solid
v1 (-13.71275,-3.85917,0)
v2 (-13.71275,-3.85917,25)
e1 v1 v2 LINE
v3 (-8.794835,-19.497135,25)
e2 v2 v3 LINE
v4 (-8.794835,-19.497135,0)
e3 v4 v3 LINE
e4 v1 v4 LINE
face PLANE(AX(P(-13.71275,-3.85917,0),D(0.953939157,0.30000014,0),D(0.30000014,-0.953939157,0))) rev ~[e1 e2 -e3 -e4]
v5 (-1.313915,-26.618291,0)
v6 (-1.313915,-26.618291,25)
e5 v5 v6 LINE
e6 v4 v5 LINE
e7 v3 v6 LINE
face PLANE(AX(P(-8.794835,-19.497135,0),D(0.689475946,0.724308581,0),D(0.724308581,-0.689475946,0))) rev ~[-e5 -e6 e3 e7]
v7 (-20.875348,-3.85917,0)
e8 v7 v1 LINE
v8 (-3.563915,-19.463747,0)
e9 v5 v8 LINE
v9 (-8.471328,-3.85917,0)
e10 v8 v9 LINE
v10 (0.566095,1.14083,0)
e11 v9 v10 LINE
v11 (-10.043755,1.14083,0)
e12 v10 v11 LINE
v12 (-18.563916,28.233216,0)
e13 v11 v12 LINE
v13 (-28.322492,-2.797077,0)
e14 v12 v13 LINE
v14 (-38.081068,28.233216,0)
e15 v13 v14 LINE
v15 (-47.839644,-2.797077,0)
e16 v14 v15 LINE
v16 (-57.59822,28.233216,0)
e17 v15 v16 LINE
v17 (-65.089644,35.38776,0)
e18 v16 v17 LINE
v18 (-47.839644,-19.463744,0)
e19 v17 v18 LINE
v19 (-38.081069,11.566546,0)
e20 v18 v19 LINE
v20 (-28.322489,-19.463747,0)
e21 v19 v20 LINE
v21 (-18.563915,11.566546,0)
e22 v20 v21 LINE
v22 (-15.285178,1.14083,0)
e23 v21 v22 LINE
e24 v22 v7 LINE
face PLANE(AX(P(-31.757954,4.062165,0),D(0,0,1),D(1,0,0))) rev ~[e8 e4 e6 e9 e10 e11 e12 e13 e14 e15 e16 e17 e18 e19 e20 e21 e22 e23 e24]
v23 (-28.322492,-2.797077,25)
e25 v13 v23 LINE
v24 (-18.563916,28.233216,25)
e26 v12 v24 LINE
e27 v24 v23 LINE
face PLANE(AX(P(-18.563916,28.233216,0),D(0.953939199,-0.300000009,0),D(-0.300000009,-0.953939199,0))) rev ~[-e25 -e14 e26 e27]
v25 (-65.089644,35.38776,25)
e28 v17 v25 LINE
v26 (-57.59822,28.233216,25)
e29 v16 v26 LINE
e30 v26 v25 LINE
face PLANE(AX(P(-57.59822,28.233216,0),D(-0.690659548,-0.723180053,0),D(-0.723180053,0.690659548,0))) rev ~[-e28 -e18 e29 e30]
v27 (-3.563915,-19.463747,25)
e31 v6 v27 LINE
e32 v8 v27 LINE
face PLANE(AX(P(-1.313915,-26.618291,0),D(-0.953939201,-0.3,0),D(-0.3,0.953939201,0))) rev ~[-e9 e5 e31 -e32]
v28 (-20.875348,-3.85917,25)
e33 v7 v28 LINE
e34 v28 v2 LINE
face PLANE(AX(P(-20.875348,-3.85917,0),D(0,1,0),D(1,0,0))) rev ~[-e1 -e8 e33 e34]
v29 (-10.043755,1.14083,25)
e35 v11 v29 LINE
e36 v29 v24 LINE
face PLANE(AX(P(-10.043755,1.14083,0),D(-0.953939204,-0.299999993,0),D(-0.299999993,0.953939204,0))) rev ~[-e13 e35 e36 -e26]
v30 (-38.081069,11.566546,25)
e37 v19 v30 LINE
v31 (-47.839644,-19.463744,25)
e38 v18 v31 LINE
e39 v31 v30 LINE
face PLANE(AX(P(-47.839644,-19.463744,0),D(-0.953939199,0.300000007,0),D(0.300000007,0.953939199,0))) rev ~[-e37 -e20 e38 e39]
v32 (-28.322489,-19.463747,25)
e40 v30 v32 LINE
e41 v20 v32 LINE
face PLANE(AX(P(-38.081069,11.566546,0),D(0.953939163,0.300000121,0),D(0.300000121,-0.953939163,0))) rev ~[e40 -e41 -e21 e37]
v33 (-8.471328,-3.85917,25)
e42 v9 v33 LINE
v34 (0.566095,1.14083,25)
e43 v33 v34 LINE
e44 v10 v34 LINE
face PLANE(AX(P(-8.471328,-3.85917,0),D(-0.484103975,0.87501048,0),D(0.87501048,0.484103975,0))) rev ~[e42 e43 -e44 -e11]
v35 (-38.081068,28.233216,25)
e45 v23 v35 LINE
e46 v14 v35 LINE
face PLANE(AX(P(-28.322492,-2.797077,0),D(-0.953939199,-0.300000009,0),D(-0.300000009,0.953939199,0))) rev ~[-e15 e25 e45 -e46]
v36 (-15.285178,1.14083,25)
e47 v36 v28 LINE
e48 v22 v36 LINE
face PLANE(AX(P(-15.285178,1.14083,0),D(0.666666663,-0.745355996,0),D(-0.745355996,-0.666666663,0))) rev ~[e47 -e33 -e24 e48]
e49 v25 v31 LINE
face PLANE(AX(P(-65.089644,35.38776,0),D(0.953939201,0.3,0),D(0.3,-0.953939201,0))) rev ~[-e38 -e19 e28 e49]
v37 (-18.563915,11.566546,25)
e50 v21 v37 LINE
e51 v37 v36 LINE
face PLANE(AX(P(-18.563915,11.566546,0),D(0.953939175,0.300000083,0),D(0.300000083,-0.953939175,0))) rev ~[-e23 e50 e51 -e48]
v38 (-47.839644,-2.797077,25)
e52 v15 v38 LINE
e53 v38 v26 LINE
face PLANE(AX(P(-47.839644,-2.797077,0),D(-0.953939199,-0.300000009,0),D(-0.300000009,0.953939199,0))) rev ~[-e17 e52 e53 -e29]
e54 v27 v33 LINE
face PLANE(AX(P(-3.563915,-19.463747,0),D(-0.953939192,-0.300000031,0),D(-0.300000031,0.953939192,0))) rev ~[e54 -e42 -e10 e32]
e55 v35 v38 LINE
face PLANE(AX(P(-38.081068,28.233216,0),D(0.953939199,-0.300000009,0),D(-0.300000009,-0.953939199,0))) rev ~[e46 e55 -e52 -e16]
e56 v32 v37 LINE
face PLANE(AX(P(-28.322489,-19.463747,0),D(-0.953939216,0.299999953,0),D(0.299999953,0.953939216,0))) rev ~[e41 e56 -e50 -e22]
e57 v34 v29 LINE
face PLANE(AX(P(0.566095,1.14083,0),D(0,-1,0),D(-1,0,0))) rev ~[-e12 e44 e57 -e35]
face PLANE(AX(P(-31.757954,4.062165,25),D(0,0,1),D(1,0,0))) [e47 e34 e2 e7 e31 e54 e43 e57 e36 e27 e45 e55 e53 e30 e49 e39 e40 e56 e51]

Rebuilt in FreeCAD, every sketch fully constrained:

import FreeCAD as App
import Part
import Sketcher

doc = App.newDocument("Part")
body = doc.addObject("PartDesign::Body", "Body")

# Sketch on XY plane
sketch1 = body.newObject("Sketcher::SketchObject", "Sketch")
sketch1.AttachmentSupport = (doc.getObject("XY_Plane"), [""])
sketch1.MapMode = "FlatFace"
sketch1.addGeometry(Part.LineSegment(App.Vector(-65.089644, 35.38776, 0), App.Vector(-47.839644, -19.463744, 0)), False)
sketch1.addGeometry(Part.LineSegment(App.Vector(-47.839644, -19.463744, 0), App.Vector(-38.081069, 11.566546, 0)), False)
sketch1.addGeometry(Part.LineSegment(App.Vector(-38.081069, 11.566546, 0), App.Vector(-28.322489, -19.463747, 0)), False)
sketch1.addGeometry(Part.LineSegment(App.Vector(-28.322489, -19.463747, 0), App.Vector(-18.563915, 11.566546, 0)), False)
sketch1.addGeometry(Part.LineSegment(App.Vector(-18.563915, 11.566546, 0), App.Vector(-15.285178, 1.14083, 0)), False)
sketch1.addGeometry(Part.LineSegment(App.Vector(-15.285178, 1.14083, 0), App.Vector(-20.875348, -3.85917, 0)), False)
sketch1.addGeometry(Part.LineSegment(App.Vector(-20.875348, -3.85917, 0), App.Vector(-13.71275, -3.85917, 0)), False)
sketch1.addGeometry(Part.LineSegment(App.Vector(-13.71275, -3.85917, 0), App.Vector(-8.794835, -19.497135, 0)), False)
sketch1.addGeometry(Part.LineSegment(App.Vector(-8.794835, -19.497135, 0), App.Vector(-1.313915, -26.618291, 0)), False)
sketch1.addGeometry(Part.LineSegment(App.Vector(-1.313915, -26.618291, 0), App.Vector(-3.563915, -19.463747, 0)), False)
sketch1.addGeometry(Part.LineSegment(App.Vector(-3.563915, -19.463747, 0), App.Vector(-8.471328, -3.85917, 0)), False)
sketch1.addGeometry(Part.LineSegment(App.Vector(-8.471328, -3.85917, 0), App.Vector(0.566095, 1.14083, 0)), False)
sketch1.addGeometry(Part.LineSegment(App.Vector(0.566095, 1.14083, 0), App.Vector(-10.043755, 1.14083, 0)), False)
sketch1.addGeometry(Part.LineSegment(App.Vector(-10.043755, 1.14083, 0), App.Vector(-18.563916, 28.233216, 0)), False)
sketch1.addGeometry(Part.LineSegment(App.Vector(-18.563916, 28.233216, 0), App.Vector(-28.322492, -2.797077, 0)), False)
sketch1.addGeometry(Part.LineSegment(App.Vector(-28.322492, -2.797077, 0), App.Vector(-38.081068, 28.233216, 0)), False)
sketch1.addGeometry(Part.LineSegment(App.Vector(-38.081068, 28.233216, 0), App.Vector(-47.839644, -2.797077, 0)), False)
sketch1.addGeometry(Part.LineSegment(App.Vector(-47.839644, -2.797077, 0), App.Vector(-57.59822, 28.233216, 0)), False)
sketch1.addGeometry(Part.LineSegment(App.Vector(-57.59822, 28.233216, 0), App.Vector(-65.089644, 35.38776, 0)), False)
sketch1.addConstraint(Sketcher.Constraint("Coincident", 0, 2, 1, 1))
sketch1.addConstraint(Sketcher.Constraint("Coincident", 1, 2, 2, 1))
sketch1.addConstraint(Sketcher.Constraint("Coincident", 2, 2, 3, 1))
sketch1.addConstraint(Sketcher.Constraint("Coincident", 3, 2, 4, 1))
sketch1.addConstraint(Sketcher.Constraint("Coincident", 4, 2, 5, 1))
sketch1.addConstraint(Sketcher.Constraint("Coincident", 5, 2, 6, 1))
sketch1.addConstraint(Sketcher.Constraint("Coincident", 6, 2, 7, 1))
sketch1.addConstraint(Sketcher.Constraint("Coincident", 7, 2, 8, 1))
sketch1.addConstraint(Sketcher.Constraint("Coincident", 8, 2, 9, 1))
sketch1.addConstraint(Sketcher.Constraint("Coincident", 9, 2, 10, 1))
sketch1.addConstraint(Sketcher.Constraint("Coincident", 10, 2, 11, 1))
sketch1.addConstraint(Sketcher.Constraint("Coincident", 11, 2, 12, 1))
sketch1.addConstraint(Sketcher.Constraint("Coincident", 12, 2, 13, 1))
sketch1.addConstraint(Sketcher.Constraint("Coincident", 13, 2, 14, 1))
sketch1.addConstraint(Sketcher.Constraint("Coincident", 14, 2, 15, 1))
sketch1.addConstraint(Sketcher.Constraint("Coincident", 15, 2, 16, 1))
sketch1.addConstraint(Sketcher.Constraint("Coincident", 16, 2, 17, 1))
sketch1.addConstraint(Sketcher.Constraint("Coincident", 17, 2, 18, 1))
sketch1.addConstraint(Sketcher.Constraint("Coincident", 18, 2, 0, 1))
sketch1.addConstraint(Sketcher.Constraint("Horizontal", 6))
sketch1.addConstraint(Sketcher.Constraint("Horizontal", 12))
sketch1.addConstraint(Sketcher.Constraint("DistanceY", 5, 2, 4, 2, 5.0))
sketch1.addConstraint(Sketcher.Constraint("DistanceY", 10, 2, 4, 2, 5.0))
sketch1.addConstraint(Sketcher.Constraint("DistanceY", 10, 2, 11, 2, 5.0))
sketch1.addConstraint(Sketcher.Constraint("Distance", 0, 57.5))
sketch1.addConstraint(Sketcher.Constraint("Distance", 5, 7.5))
sketch1.addConstraint(Sketcher.Constraint("Distance", 9, 7.5))
sketch1.addConstraint(Sketcher.Constraint("DistanceX", 9, 2, 8, 2, 2.25))
sketch1.addConstraint(Sketcher.Constraint("DistanceX", 18, 2, 16, 2, 17.25))
sketch1.addConstraint(Sketcher.Constraint("DistanceX", 12, 2, 12, 1, 10.60985))
sketch1.addConstraint(Sketcher.Constraint("Distance", 4, 10.92912))
sketch1.addConstraint(Sketcher.Constraint("Distance", 8, 10.32836))
sketch1.addConstraint(Sketcher.Constraint("Distance", 10, 16.358042))
sketch1.addConstraint(Sketcher.Constraint("Distance", 11, 10.32836))
sketch1.addConstraint(Sketcher.Constraint("DistanceX", 6, 1, 6, 2, 7.162598))
sketch1.addConstraint(Sketcher.Constraint("DistanceX", 1, 2, -1, 1, 38.081069))
sketch1.addConstraint(Sketcher.Constraint("DistanceX", 2, 2, -1, 1, 28.322489))
sketch1.addConstraint(Sketcher.Constraint("DistanceY", -1, 1, 4, 2, 1.14083))
sketch1.addConstraint(Sketcher.Constraint("DistanceX", 6, 2, -1, 1, 13.71275))
sketch1.addConstraint(Sketcher.Constraint("DistanceY", 8, 2, -1, 1, 26.618291))
sketch1.addConstraint(Sketcher.Constraint("DistanceX", 15, 2, -1, 1, 38.081068))
sketch1.addConstraint(Sketcher.Constraint("DistanceX", 17, 2, -1, 1, 57.59822))
sketch1.addConstraint(Sketcher.Constraint("DistanceY", -1, 1, 18, 2, 35.38776))
sketch1.addConstraint(Sketcher.Constraint("DistanceY", 0, 2, 1, 2, 31.03029))
sketch1.addConstraint(Sketcher.Constraint("DistanceX", 0, 2, 3, 2, 29.275729))
sketch1.addConstraint(Sketcher.Constraint("DistanceY", 0, 2, 3, 2, 31.03029))
sketch1.addConstraint(Sketcher.Constraint("DistanceX", 3, 2, 7, 2, 9.76908))
sketch1.addConstraint(Sketcher.Constraint("DistanceY", 7, 2, 3, 2, 31.063681))
sketch1.addConstraint(Sketcher.Constraint("DistanceX", 7, 2, 8, 2, 7.48092))
sketch1.addConstraint(Sketcher.Constraint("DistanceY", 3, 2, 13, 2, 16.66667))
sketch1.addConstraint(Sketcher.Constraint("DistanceX", 13, 2, 12, 2, 8.520161))
sketch1.addConstraint(Sketcher.Constraint("DistanceY", 2, 2, 14, 2, 16.66667))
sketch1.addConstraint(Sketcher.Constraint("DistanceY", 1, 2, 15, 2, 16.66667))
sketch1.addConstraint(Sketcher.Constraint("DistanceX", 16, 2, 14, 2, 19.517152))
sketch1.addConstraint(Sketcher.Constraint("DistanceY", 2, 2, 16, 2, 16.66667))
sketch1.addConstraint(Sketcher.Constraint("DistanceY", 1, 2, 17, 2, 16.66667))
sketch1.addConstraint(Sketcher.Constraint("Distance", 2, 32.528587))
pad1 = body.newObject("PartDesign::Pad", "Pad")
pad1.Profile = sketch1
pad1.Length = 25

doc.recompute()
